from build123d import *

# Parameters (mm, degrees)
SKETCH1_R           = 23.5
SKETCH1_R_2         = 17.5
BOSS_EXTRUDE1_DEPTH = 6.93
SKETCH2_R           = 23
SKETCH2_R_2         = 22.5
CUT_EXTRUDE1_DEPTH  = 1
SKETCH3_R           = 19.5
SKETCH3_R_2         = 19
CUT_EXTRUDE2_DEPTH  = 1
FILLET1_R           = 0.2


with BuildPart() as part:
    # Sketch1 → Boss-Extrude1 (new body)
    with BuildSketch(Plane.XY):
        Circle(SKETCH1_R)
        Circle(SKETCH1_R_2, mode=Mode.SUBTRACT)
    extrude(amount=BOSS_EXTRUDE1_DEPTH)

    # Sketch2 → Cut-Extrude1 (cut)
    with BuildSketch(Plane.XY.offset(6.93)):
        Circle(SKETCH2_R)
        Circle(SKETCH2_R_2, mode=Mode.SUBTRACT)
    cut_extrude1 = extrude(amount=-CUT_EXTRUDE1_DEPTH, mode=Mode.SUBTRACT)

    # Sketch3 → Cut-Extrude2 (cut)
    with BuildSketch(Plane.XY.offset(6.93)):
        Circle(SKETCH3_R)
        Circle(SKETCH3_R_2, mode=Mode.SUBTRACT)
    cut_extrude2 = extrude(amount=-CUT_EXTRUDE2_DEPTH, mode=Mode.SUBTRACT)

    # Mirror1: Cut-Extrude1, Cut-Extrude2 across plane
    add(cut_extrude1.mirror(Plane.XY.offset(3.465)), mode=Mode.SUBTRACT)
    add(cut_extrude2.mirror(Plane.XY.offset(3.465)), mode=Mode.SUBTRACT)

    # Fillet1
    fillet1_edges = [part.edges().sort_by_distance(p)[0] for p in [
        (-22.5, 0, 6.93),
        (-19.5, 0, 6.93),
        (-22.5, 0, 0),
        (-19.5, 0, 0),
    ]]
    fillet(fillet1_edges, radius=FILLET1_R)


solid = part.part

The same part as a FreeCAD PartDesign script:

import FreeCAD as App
import Part
import Sketcher
from FreeCAD import Vector
Q = App.Units.Quantity


def edges_at(feature, points):
    """Names of the edges that pass closest to the given points."""
    edges = feature.Shape.Edges
    near = lambda p: min(range(len(edges)), key=lambda i: edges[i].distToShape(Part.Vertex(*p))[0])
    return sorted({f"Edge{near(p) + 1}" for p in points})

doc = App.newDocument("Part")
body = doc.addObject("PartDesign::Body", "Body")

# Sketch on XY plane
sketch1 = doc.addObject("Sketcher::SketchObject", "Sketch")
body.addObject(sketch1)
sketch1.AttachmentSupport = (doc.XY_Plane, [""])
sketch1.MapMode = "FlatFace"
sketch1.addGeometry([
    Part.Circle(Vector(0, 0, 0), Vector(0, 0, 1), 23.5),
    Part.Circle(Vector(0, 0, 0), Vector(0, 0, 1), 17.5),
], False)
sketch1.addConstraint([
    Sketcher.Constraint("Coincident", 0, 3, -1, 1),
    Sketcher.Constraint("Coincident", 1, 3, -1, 1),
    Sketcher.Constraint("Diameter", 0, Q("47 mm")),
    Sketcher.Constraint("Diameter", 1, Q("35 mm")),
])
pad1 = doc.addObject("PartDesign::Pad", "Pad")
body.addObject(pad1)
pad1.Profile = sketch1
pad1.Length = 6.93

# Sketch on XY plane
sketch2 = doc.addObject("Sketcher::SketchObject", "Sketch001")
body.addObject(sketch2)
sketch2.AttachmentSupport = (doc.XY_Plane, [""])
sketch2.MapMode = "FlatFace"
sketch2.AttachmentOffset = App.Placement(Vector(0, 0, 6.93), App.Rotation())
sketch2.addGeometry([
    Part.Circle(Vector(0, 0, 0), Vector(0, 0, 1), 23),
    Part.Circle(Vector(0, 0, 0), Vector(0, 0, 1), 22.5),
], False)
sketch2.addConstraint([
    Sketcher.Constraint("Coincident", 0, 3, -1, 1),
    Sketcher.Constraint("Coincident", 1, 3, -1, 1),
    Sketcher.Constraint("Diameter", 0, Q("46 mm")),
    Sketcher.Constraint("Diameter", 1, Q("45 mm")),
])
pocket1 = doc.addObject("PartDesign::Pocket", "Pocket")
body.addObject(pocket1)
pocket1.Profile = sketch2
pocket1.Length = 1

# Sketch on XY plane
sketch3 = doc.addObject("Sketcher::SketchObject", "Sketch002")
body.addObject(sketch3)
sketch3.AttachmentSupport = (doc.XY_Plane, [""])
sketch3.MapMode = "FlatFace"
sketch3.AttachmentOffset = App.Placement(Vector(0, 0, 6.93), App.Rotation())
sketch3.addGeometry([
    Part.Circle(Vector(0, 0, 0), Vector(0, 0, 1), 19.5),
    Part.Circle(Vector(0, 0, 0), Vector(0, 0, 1), 19),
], False)
sketch3.addConstraint([
    Sketcher.Constraint("Coincident", 0, 3, -1, 1),
    Sketcher.Constraint("Coincident", 1, 3, -1, 1),
    Sketcher.Constraint("Diameter", 0, Q("39 mm")),
    Sketcher.Constraint("Diameter", 1, Q("38 mm")),
])
pocket2 = doc.addObject("PartDesign::Pocket", "Pocket001")
body.addObject(pocket2)
pocket2.Profile = sketch3
pocket2.Length = 1
doc.recompute()

datumplane = doc.addObject("PartDesign::Plane", "DatumPlane")
body.addObject(datumplane)
datumplane.AttachmentSupport = (doc.XY_Plane, [""])
datumplane.MapMode = "FlatFace"
datumplane.AttachmentOffset = App.Placement(Vector(0, 0, 3.465), App.Rotation())
mirrored = doc.addObject("PartDesign::Mirrored", "Mirrored")
body.addObject(mirrored)
mirrored.Originals = [pocket1, pocket2]
mirrored.MirrorPlane = (datumplane, [""])
body.Tip = mirrored
doc.recompute()

fillet = doc.addObject("PartDesign::Fillet", "Fillet")
body.addObject(fillet)
fillet.Base = (mirrored, edges_at(mirrored, [
    (-22.5, 0, 6.93),
    (-19.5, 0, 6.93),
    (-22.5, 0, 0),
    (-19.5, 0, 0),
]))
fillet.Radius = 0.2

doc.recompute()
